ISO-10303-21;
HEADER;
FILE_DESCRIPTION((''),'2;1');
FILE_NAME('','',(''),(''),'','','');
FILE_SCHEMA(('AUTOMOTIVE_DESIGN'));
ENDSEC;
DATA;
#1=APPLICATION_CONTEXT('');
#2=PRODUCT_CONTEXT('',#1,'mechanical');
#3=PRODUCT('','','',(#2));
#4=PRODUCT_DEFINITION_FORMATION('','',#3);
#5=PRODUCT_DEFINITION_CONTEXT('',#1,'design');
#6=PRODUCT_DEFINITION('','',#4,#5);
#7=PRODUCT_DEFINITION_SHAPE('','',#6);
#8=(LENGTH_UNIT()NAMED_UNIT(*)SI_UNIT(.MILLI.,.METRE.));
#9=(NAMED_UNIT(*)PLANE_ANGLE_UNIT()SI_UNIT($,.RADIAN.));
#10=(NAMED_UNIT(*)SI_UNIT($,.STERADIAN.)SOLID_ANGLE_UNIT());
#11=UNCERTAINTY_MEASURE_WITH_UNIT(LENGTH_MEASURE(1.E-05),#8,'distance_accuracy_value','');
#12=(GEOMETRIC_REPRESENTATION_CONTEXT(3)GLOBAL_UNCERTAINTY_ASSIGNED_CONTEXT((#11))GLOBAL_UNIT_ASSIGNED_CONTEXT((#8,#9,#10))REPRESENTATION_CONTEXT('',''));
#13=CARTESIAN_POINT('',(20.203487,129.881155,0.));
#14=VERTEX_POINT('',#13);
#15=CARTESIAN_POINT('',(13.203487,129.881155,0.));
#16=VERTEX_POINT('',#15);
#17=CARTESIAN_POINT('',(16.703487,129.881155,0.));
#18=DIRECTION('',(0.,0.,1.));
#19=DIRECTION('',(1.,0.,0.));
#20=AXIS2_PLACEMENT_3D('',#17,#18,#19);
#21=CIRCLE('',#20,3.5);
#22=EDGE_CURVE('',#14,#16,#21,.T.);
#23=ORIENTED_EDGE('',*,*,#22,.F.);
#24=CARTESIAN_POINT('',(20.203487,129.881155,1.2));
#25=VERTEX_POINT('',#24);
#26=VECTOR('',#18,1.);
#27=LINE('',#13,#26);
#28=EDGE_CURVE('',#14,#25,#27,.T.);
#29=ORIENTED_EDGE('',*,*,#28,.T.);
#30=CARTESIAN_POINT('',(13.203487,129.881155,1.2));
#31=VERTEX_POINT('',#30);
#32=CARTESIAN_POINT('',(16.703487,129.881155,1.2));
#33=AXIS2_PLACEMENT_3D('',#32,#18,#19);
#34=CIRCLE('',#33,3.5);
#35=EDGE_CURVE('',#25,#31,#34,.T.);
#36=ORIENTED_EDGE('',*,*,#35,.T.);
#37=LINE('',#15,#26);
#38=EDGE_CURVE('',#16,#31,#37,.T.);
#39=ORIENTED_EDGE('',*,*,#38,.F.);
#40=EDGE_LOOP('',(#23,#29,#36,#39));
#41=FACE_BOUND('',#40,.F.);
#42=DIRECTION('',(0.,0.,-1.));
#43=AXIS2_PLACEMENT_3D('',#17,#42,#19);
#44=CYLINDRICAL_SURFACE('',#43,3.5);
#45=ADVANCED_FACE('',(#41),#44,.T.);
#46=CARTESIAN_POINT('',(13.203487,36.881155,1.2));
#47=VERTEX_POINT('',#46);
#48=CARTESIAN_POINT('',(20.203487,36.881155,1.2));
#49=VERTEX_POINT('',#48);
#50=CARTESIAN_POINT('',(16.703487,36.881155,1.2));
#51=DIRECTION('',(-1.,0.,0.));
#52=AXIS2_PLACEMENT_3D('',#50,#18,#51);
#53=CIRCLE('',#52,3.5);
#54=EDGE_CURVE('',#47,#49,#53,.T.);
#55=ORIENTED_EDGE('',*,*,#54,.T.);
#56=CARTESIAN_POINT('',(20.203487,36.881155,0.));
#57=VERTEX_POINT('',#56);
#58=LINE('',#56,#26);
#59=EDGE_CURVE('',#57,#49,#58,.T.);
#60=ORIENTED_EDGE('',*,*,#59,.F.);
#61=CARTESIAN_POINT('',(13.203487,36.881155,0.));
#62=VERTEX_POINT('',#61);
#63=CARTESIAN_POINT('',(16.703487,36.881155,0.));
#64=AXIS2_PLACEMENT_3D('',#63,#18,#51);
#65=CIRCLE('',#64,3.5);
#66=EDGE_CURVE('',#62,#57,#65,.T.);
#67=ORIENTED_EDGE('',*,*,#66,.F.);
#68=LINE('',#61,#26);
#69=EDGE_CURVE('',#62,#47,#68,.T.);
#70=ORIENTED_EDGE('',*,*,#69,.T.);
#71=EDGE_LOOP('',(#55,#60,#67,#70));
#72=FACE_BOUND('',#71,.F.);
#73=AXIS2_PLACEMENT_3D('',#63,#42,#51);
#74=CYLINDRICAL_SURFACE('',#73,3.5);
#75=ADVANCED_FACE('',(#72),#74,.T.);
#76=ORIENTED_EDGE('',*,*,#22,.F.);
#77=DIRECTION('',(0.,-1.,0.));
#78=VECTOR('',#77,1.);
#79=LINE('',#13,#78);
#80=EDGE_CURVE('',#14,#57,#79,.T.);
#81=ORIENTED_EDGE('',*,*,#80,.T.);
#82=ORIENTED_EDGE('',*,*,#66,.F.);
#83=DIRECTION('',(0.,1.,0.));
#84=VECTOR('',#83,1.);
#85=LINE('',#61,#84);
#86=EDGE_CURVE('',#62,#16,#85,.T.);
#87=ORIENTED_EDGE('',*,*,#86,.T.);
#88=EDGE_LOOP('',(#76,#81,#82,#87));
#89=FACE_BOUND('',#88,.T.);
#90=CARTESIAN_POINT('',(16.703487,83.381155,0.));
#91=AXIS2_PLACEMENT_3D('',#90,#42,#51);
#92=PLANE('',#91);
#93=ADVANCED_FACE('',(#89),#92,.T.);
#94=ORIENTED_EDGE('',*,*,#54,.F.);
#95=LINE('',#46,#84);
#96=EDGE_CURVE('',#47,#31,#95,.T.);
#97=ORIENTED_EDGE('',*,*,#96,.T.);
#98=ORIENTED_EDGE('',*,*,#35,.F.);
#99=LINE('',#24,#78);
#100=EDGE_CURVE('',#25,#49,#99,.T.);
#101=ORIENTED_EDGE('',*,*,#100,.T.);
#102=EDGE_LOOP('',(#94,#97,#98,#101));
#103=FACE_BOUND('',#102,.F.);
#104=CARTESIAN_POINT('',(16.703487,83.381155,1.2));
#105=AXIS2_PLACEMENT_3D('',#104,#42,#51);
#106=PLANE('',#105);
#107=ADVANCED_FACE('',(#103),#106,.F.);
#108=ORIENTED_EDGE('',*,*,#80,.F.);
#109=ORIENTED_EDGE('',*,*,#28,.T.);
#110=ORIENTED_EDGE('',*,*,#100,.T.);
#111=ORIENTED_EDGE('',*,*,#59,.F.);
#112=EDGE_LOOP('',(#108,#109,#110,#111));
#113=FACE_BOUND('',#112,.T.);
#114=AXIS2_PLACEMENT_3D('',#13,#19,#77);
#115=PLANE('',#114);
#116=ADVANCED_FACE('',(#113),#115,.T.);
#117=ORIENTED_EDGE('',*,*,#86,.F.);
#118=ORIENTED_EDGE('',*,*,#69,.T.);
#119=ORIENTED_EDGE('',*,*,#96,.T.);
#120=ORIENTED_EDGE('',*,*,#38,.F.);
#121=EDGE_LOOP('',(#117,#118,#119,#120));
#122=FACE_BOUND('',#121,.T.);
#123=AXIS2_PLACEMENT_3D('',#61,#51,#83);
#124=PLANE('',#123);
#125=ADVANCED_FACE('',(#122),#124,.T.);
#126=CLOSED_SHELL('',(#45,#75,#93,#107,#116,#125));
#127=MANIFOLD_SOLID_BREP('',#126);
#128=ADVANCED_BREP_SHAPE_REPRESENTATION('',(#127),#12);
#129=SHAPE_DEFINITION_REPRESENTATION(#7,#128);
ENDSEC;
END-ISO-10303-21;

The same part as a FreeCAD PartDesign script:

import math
import FreeCAD as App
import Part
import Sketcher
from FreeCAD import Vector

doc = App.newDocument("Part")
body = doc.addObject("PartDesign::Body", "Body")

# Sketch on XY plane
sketch1 = body.newObject("Sketcher::SketchObject", "Sketch")
sketch1.AttachmentSupport = (doc.getObject("XY_Plane"), [""])
sketch1.MapMode = "FlatFace"
sketch1.addGeometry(Part.LineSegment(Vector(20.2, 36.9, 0), Vector(20.2, 129.9, 0)), False)
sketch1.addGeometry(Part.ArcOfCircle(Part.Circle(Vector(16.7, 129.9, 0), Vector(0, 0, 1), 3.5), math.radians(0), math.radians(180)), False)
sketch1.addGeometry(Part.LineSegment(Vector(13.2, 129.9, 0), Vector(13.2, 36.9, 0)), False)
sketch1.addGeometry(Part.ArcOfCircle(Part.Circle(Vector(16.7, 36.9, 0), Vector(0, 0, 1), 3.5), math.radians(180), math.radians(360)), False)
sketch1.addConstraint(Sketcher.Constraint("Tangent", 0, 2, 1, 1))
sketch1.addConstraint(Sketcher.Constraint("Tangent", 1, 2, 2, 1))
sketch1.addConstraint(Sketcher.Constraint("Tangent", 2, 2, 3, 1))
sketch1.addConstraint(Sketcher.Constraint("Tangent", 3, 2, 0, 1))
sketch1.addConstraint(Sketcher.Constraint("Vertical", 0))
sketch1.addConstraint(Sketcher.Constraint("Vertical", 2))
sketch1.addConstraint(Sketcher.Constraint("Radius", 1, 3.5))
sketch1.addConstraint(Sketcher.Constraint("DistanceY", 0, 1, 0, 2, 93.0))
sketch1.addConstraint(Sketcher.Constraint("DistanceX", -1, 1, 1, 3, 16.703487))
sketch1.addConstraint(Sketcher.Constraint("DistanceY", -1, 1, 1, 3, 129.881155))
pad1 = body.newObject("PartDesign::Pad", "Pad")
pad1.Profile = sketch1
pad1.Length = 1.2

doc.recompute()
